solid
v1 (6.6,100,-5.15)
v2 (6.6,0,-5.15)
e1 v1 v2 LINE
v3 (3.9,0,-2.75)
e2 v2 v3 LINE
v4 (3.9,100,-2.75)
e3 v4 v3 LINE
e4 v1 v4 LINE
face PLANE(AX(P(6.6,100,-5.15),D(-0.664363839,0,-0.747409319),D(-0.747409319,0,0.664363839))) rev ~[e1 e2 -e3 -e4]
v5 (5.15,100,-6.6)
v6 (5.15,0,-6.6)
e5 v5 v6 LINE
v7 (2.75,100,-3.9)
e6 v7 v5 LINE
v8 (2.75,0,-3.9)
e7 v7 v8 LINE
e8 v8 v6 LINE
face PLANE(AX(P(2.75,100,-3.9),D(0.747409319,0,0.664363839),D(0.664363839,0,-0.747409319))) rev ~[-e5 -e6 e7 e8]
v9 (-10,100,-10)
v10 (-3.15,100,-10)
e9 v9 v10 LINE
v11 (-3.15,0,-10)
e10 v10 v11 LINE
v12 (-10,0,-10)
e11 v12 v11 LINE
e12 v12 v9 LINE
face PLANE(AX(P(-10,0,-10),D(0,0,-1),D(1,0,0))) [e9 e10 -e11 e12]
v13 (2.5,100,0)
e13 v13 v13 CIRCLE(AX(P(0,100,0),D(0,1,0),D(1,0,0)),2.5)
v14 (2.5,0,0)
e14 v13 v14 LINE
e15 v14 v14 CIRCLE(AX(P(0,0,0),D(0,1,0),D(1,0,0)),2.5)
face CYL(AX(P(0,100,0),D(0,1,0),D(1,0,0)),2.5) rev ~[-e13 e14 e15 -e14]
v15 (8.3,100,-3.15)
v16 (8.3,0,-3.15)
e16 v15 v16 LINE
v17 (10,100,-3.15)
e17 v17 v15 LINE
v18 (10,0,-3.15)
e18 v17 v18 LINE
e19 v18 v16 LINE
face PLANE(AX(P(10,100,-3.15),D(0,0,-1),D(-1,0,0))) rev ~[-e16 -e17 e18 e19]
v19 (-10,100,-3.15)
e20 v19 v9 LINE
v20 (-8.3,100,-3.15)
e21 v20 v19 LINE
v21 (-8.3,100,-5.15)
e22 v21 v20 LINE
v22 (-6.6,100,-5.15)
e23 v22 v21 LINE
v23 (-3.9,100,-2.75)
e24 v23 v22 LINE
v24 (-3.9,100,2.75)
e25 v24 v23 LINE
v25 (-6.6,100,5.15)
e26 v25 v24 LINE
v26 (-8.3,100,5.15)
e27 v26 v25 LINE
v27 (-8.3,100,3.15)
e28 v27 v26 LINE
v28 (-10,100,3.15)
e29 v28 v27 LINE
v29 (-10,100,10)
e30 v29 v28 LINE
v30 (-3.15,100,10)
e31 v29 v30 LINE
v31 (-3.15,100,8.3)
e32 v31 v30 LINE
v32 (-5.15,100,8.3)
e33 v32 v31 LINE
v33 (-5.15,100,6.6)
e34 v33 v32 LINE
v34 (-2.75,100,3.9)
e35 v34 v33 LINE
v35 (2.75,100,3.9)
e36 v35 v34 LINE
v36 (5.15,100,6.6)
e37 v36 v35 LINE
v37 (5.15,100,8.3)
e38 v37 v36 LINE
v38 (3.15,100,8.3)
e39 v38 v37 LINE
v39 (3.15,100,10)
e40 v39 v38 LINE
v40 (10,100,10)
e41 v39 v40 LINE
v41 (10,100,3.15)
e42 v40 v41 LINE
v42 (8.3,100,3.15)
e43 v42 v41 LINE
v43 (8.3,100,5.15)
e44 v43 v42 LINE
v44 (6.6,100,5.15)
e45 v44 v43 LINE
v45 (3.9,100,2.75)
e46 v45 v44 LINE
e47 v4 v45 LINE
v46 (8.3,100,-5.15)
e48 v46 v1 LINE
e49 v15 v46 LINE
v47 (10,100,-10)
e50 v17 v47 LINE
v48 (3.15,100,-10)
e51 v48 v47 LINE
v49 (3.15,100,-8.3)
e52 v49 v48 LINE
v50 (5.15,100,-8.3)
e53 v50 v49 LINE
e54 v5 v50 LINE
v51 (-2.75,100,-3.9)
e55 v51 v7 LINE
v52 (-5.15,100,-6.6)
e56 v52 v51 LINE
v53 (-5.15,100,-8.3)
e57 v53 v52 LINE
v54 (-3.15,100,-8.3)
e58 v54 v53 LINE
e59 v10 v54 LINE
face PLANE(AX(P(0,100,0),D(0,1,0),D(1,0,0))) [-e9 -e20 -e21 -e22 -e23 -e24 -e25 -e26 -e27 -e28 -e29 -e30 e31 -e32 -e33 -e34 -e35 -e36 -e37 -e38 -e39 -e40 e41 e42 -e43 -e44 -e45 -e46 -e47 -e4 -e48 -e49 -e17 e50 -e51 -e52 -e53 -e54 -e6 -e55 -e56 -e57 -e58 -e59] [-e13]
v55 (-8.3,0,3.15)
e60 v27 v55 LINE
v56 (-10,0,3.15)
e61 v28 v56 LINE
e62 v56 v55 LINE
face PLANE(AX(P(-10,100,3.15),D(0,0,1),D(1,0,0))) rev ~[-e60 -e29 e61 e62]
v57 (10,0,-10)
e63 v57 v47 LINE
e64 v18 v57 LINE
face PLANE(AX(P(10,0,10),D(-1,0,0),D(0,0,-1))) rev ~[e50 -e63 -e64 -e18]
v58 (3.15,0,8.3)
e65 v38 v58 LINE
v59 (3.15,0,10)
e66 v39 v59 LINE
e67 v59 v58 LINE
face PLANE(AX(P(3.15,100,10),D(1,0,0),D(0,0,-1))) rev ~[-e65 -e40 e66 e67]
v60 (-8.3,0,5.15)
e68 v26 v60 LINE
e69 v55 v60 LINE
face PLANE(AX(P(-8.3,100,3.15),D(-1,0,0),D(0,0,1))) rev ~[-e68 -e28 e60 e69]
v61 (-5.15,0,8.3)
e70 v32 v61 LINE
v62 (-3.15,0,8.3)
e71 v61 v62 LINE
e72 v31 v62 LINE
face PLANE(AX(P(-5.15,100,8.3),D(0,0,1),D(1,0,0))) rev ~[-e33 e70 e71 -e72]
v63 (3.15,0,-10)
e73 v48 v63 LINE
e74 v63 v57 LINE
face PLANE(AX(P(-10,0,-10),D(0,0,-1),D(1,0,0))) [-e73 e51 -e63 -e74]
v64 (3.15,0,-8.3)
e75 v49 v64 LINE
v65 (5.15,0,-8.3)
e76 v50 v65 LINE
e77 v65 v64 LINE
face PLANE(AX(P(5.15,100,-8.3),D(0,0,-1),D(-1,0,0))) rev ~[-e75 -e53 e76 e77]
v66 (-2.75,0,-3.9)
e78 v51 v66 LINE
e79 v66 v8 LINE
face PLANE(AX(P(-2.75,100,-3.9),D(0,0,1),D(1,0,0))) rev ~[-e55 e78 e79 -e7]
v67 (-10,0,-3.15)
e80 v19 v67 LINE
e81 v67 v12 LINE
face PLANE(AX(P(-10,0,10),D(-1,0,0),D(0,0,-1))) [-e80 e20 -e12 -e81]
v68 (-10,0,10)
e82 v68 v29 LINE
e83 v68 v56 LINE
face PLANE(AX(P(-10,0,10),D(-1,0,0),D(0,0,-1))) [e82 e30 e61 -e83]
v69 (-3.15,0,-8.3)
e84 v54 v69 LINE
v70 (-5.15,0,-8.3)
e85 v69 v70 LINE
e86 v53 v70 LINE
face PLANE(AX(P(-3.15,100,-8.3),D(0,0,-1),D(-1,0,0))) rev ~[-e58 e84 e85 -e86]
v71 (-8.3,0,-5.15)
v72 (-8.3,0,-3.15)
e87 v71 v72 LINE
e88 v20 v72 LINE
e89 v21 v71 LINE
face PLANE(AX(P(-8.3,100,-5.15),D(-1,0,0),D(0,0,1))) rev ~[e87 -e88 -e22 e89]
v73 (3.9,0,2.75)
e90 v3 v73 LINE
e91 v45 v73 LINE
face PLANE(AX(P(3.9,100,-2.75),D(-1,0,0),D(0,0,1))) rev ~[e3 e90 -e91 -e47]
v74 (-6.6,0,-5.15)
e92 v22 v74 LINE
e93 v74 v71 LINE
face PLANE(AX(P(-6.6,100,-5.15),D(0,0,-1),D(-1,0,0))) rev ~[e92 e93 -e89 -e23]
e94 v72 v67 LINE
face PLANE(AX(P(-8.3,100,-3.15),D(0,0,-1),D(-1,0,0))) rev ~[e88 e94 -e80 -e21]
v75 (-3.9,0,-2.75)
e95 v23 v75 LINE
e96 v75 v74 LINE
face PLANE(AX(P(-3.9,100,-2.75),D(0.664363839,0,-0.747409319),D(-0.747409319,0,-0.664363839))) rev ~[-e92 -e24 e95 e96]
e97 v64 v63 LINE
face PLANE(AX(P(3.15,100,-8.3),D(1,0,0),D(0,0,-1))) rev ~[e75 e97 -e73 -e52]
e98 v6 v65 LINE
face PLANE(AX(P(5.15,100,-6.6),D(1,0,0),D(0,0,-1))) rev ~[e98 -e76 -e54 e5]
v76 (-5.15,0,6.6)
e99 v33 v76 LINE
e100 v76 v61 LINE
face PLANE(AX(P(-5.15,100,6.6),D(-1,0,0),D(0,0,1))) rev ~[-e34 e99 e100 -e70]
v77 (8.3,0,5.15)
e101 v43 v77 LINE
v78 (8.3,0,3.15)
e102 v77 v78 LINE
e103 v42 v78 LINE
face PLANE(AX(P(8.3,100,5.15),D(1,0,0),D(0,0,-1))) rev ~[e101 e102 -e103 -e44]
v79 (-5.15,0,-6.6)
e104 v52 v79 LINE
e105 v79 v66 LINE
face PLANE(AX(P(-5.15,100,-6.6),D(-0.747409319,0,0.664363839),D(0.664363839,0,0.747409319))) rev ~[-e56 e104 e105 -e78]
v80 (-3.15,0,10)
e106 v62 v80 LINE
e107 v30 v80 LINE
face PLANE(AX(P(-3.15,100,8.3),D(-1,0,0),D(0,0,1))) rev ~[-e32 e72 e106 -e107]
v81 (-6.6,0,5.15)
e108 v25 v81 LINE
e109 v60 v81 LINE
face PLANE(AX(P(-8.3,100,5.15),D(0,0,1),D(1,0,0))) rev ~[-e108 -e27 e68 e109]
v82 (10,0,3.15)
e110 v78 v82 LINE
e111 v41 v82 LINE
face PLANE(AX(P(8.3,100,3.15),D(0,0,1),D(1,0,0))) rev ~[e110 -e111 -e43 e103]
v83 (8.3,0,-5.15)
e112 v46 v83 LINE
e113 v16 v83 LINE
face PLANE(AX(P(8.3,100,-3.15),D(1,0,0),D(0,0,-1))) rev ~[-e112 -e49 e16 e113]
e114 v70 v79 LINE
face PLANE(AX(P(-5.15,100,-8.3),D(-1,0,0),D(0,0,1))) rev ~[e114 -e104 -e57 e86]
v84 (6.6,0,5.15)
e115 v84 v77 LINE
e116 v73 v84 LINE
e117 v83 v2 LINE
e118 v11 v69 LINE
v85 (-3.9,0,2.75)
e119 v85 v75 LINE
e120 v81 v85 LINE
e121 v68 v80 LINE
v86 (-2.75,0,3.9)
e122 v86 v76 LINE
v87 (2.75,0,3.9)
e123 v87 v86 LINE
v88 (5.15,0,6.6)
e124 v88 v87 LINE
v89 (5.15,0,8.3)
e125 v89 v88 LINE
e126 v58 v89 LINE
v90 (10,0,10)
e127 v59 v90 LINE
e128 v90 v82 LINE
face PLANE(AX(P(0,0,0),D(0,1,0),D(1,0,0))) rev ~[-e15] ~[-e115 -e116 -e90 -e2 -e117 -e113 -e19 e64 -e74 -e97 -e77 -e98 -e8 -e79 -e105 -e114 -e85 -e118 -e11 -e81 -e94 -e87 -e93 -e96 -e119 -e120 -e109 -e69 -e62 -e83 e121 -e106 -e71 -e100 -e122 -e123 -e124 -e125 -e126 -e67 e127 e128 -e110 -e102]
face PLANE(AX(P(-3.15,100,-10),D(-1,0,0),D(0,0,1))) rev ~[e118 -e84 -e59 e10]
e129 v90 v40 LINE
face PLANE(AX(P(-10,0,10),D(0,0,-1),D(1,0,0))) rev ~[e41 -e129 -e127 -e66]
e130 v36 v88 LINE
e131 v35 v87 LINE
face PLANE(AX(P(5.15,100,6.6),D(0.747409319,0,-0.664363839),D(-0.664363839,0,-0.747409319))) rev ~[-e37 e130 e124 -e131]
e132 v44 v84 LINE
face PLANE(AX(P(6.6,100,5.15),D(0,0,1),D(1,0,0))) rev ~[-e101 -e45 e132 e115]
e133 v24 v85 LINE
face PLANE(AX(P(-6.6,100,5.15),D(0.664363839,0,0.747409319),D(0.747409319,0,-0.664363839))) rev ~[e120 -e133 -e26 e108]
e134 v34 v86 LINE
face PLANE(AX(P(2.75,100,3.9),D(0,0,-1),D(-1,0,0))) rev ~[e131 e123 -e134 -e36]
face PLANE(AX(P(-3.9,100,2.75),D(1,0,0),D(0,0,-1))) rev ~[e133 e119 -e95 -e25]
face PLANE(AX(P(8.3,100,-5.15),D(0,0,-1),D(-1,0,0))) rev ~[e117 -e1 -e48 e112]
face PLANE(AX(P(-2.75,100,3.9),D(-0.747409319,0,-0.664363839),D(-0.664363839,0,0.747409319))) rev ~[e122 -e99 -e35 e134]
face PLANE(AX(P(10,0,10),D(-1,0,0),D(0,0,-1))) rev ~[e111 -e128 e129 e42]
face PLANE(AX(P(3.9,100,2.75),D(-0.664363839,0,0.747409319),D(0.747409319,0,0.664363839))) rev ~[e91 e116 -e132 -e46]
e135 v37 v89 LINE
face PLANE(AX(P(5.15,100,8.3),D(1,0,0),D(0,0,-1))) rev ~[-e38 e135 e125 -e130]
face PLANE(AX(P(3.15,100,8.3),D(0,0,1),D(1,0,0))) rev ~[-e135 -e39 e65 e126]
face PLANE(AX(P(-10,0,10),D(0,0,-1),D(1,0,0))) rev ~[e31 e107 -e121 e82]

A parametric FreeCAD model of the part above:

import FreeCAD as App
import Part
import Sketcher
from FreeCAD import Vector


def add_polygon(sketch, points):
    """Adds a closed chain of lines whose ends are joined by coincident constraints."""
    first, n = sketch.GeometryCount, len(points)
    for a, b in zip(points, points[1:] + points[:1]):
        sketch.addGeometry(Part.LineSegment(App.Vector(*a, 0), App.Vector(*b, 0)), False)
    for i in range(n):
        sketch.addConstraint(Sketcher.Constraint("Coincident", first + i, 2, first + (i + 1) % n, 1))

doc = App.newDocument("Part")
body = doc.addObject("PartDesign::Body", "Body")

sketch1 = body.newObject("Sketcher::SketchObject", "Sketch")
sketch1.AttachmentSupport = (doc.getObject("XZ_Plane"), [""])
sketch1.MapMode = "FlatFace"
add_polygon(sketch1, [(-10, -10), (-10, 10), (10, 10), (10, -10)])
sketch1.addConstraint([
    Sketcher.Constraint("Vertical", 0),
    Sketcher.Constraint("Horizontal", 1),
    Sketcher.Constraint("Vertical", 2),
    Sketcher.Constraint("Horizontal", 3),
    Sketcher.Constraint("Symmetric", 0, 2, 2, 2, -1, 1),
    Sketcher.Constraint("Equal", 3, 0),
    Sketcher.Constraint("DistanceX", 1, 1, 1, 2, 20.0),
])
pad1 = body.newObject("PartDesign::Pad", "Pad")
pad1.Profile = sketch1
pad1.Length = 100
pad1.Reversed = True

sketch2 = body.newObject("Sketcher::SketchObject", "Sketch001")
sketch2.AttachmentSupport = (doc.getObject("XZ_Plane"), [""])
sketch2.MapMode = "FlatFace"
sketch2.AttachmentOffset = App.Placement(Vector(0, 0, -100), App.Rotation())
sketch2.addGeometry(Part.Circle(Vector(0, 0, 0), Vector(0, 0, 1), 2.5), False)
add_polygon(sketch2, [(-3.1, -10), (-3.1, -8.3), (-5.2, -8.3), (-5.2, -6.6), (-2.8, -3.9), (2.8, -3.9), (5.2, -6.6), (5.2, -8.3), (3.1, -8.3), (3.1, -10)])
add_polygon(sketch2, [(3.9, -2.8), (3.9, 2.8), (6.6, 5.2), (8.3, 5.2), (8.3, 3.1), (10, 3.1), (10, -3.1), (8.3, -3.1), (8.3, -5.2), (6.6, -5.2)])
add_polygon(sketch2, [(2.8, 3.9), (-2.8, 3.9), (-5.2, 6.6), (-5.2, 8.3), (-3.1, 8.3), (-3.1, 10), (3.1, 10), (3.1, 8.3), (5.2, 8.3), (5.2, 6.6)])
add_polygon(sketch2, [(-3.9, 2.8), (-3.9, -2.8), (-6.6, -5.2), (-8.3, -5.2), (-8.3, -3.1), (-10, -3.1), (-10, 3.1), (-8.3, 3.1), (-8.3, 5.2), (-6.6, 5.2)])
sketch2.addConstraint([
    Sketcher.Constraint("Vertical", 1),
    Sketcher.Constraint("Horizontal", 2),
    Sketcher.Constraint("Vertical", 3),
    Sketcher.Constraint("Horizontal", 5),
    Sketcher.Constraint("Vertical", 7),
    Sketcher.Constraint("Horizontal", 8),
    Sketcher.Constraint("Vertical", 9),
    Sketcher.Constraint("Horizontal", 10),
    Sketcher.Constraint("Vertical", 11),
    Sketcher.Constraint("Horizontal", 13),
    Sketcher.Constraint("Vertical", 14),
    Sketcher.Constraint("Horizontal", 15),
    Sketcher.Constraint("Vertical", 16),
    Sketcher.Constraint("Horizontal", 17),
    Sketcher.Constraint("Vertical", 18),
    Sketcher.Constraint("Horizontal", 19),
    Sketcher.Constraint("Horizontal", 21),
    Sketcher.Constraint("Vertical", 23),
    Sketcher.Constraint("Horizontal", 24),
    Sketcher.Constraint("Vertical", 25),
    Sketcher.Constraint("Horizontal", 26),
    Sketcher.Constraint("Vertical", 27),
    Sketcher.Constraint("Horizontal", 28),
    Sketcher.Constraint("Vertical", 29),
    Sketcher.Constraint("Vertical", 31),
    Sketcher.Constraint("Horizontal", 33),
    Sketcher.Constraint("Vertical", 34),
    Sketcher.Constraint("Horizontal", 35),
    Sketcher.Constraint("Vertical", 36),
    Sketcher.Constraint("Horizontal", 37),
    Sketcher.Constraint("Vertical", 38),
    Sketcher.Constraint("Horizontal", 39),
    Sketcher.Constraint("Coincident", 0, 3, -1, 1),
    Sketcher.Constraint("Symmetric", 5, 2, 21, 2, -1, 1),
    Sketcher.Constraint("Symmetric", 6, 2, 22, 2, -1, 1),
    Sketcher.Constraint("Symmetric", 8, 2, 24, 2, -1, 1),
    Sketcher.Constraint("Symmetric", 10, 2, 26, 2, -1, 1),
    Sketcher.Constraint("Symmetric", 2, 2, 28, 2, -1, 1),
    Sketcher.Constraint("Symmetric", 11, 2, 31, 2, -1, 1),
    Sketcher.Constraint("Symmetric", 12, 2, 32, 2, -1, 1),
    Sketcher.Constraint("Symmetric", 14, 2, 34, 2, -1, 1),
    Sketcher.Constraint("Symmetric", 16, 2, 36, 2, -1, 1),
    Sketcher.Constraint("Symmetric", 18, 2, 38, 2, -1, 1),
    Sketcher.Constraint("Symmetric", 3, 2, 6, 2, -2),
    Sketcher.Constraint("Symmetric", 1, 2, 8, 2, -2),
    Sketcher.Constraint("Symmetric", 19, 2, 32, 2, -2),
    Sketcher.Constraint("Symmetric", 17, 2, 34, 2, -2),
    Sketcher.Constraint("Perpendicular", 6, 12),
    Sketcher.Constraint("Perpendicular", 4, 20),
    Sketcher.Constraint("Perpendicular", 20, 30),
    Sketcher.Constraint("Perpendicular", 30, 40),
    Sketcher.Constraint("Horizontal", 22, 2, 29, 2),
    Sketcher.Constraint("Horizontal", 20, 2, 31, 2),
    Sketcher.Constraint("Horizontal", 11, 2, 40, 2),
    Sketcher.Constraint("Equal", 13, 15),
    Sketcher.Constraint("Equal", 39, 1),
    Sketcher.Constraint("Equal", 1, 3),
    Sketcher.Constraint("Equal", 21, 11),
    Sketcher.Constraint("Equal", 28, 14),
    Sketcher.Constraint("Equal", 26, 16),
    Sketcher.Constraint("Diameter", 0, 5.0),
    Sketcher.Constraint("DistanceX", 2, 2, 2, 1, 2.0),
    Sketcher.Constraint("DistanceX", 5, 1, 5, 2, 5.5),
    Sketcher.Constraint("DistanceX", 10, 2, 10, 1, 6.3),
    Sketcher.Constraint("DistanceX", 13, 1, 13, 2, 1.7),
    Sketcher.Constraint("DistanceY", 9, 2, -1, 1, 10.0),
    Sketcher.Constraint("DistanceX", -1, 1, 15, 2, 10.0),
    Sketcher.Constraint("DistanceY", 4, 2, -1, 1, 3.9),
])
pocket1 = body.newObject("PartDesign::Pocket", "Pocket")
pocket1.Profile = sketch2
pocket1.Type = "ThroughAll"
pocket1.Reversed = True

doc.recompute()
